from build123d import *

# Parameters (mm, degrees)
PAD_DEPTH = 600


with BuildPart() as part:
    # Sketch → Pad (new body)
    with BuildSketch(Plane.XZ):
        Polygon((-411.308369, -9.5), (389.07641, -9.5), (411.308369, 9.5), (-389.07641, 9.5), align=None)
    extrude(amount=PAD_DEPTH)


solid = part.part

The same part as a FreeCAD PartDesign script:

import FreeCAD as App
import Part
import Sketcher


def add_polygon(sketch, points):
    """Adds a closed chain of lines whose ends are joined by coincident constraints."""
    first, n = sketch.GeometryCount, len(points)
    for a, b in zip(points, points[1:] + points[:1]):
        sketch.addGeometry(Part.LineSegment(App.Vector(*a, 0), App.Vector(*b, 0)), False)
    for i in range(n):
        sketch.addConstraint(Sketcher.Constraint("Coincident", first + i, 2, first + (i + 1) % n, 1))

doc = App.newDocument("Part")
body = doc.addObject("PartDesign::Body", "Body")

# Sketch on XZ plane
sketch1 = body.newObject("Sketcher::SketchObject", "Sketch")
sketch1.AttachmentSupport = (doc.getObject("XZ_Plane"), [""])
sketch1.MapMode = "FlatFace"
add_polygon(sketch1, [(-411.308369, -9.5), (389.07641, -9.5), (411.308369, 9.5), (-389.07641, 9.5)])  # lines 0-3
sketch1.addConstraint([
    Sketcher.Constraint("Horizontal", 0),
    Sketcher.Constraint("Horizontal", 2),
    Sketcher.Constraint("Symmetric", 0, 2, 2, 2, -1, 1),
    Sketcher.Constraint("Parallel", 1, 3),
    Sketcher.Constraint("DistanceY", 0, 2, 1, 2, 19.0),
    Sketcher.Constraint("DistanceX", 0, 1, 0, 2, 800.384779),
    Sketcher.Constraint("Distance", 1, 29.244829),
])
pad1 = body.newObject("PartDesign::Pad", "Pad")
pad1.Profile = sketch1
pad1.Length = 600

doc.recompute()
